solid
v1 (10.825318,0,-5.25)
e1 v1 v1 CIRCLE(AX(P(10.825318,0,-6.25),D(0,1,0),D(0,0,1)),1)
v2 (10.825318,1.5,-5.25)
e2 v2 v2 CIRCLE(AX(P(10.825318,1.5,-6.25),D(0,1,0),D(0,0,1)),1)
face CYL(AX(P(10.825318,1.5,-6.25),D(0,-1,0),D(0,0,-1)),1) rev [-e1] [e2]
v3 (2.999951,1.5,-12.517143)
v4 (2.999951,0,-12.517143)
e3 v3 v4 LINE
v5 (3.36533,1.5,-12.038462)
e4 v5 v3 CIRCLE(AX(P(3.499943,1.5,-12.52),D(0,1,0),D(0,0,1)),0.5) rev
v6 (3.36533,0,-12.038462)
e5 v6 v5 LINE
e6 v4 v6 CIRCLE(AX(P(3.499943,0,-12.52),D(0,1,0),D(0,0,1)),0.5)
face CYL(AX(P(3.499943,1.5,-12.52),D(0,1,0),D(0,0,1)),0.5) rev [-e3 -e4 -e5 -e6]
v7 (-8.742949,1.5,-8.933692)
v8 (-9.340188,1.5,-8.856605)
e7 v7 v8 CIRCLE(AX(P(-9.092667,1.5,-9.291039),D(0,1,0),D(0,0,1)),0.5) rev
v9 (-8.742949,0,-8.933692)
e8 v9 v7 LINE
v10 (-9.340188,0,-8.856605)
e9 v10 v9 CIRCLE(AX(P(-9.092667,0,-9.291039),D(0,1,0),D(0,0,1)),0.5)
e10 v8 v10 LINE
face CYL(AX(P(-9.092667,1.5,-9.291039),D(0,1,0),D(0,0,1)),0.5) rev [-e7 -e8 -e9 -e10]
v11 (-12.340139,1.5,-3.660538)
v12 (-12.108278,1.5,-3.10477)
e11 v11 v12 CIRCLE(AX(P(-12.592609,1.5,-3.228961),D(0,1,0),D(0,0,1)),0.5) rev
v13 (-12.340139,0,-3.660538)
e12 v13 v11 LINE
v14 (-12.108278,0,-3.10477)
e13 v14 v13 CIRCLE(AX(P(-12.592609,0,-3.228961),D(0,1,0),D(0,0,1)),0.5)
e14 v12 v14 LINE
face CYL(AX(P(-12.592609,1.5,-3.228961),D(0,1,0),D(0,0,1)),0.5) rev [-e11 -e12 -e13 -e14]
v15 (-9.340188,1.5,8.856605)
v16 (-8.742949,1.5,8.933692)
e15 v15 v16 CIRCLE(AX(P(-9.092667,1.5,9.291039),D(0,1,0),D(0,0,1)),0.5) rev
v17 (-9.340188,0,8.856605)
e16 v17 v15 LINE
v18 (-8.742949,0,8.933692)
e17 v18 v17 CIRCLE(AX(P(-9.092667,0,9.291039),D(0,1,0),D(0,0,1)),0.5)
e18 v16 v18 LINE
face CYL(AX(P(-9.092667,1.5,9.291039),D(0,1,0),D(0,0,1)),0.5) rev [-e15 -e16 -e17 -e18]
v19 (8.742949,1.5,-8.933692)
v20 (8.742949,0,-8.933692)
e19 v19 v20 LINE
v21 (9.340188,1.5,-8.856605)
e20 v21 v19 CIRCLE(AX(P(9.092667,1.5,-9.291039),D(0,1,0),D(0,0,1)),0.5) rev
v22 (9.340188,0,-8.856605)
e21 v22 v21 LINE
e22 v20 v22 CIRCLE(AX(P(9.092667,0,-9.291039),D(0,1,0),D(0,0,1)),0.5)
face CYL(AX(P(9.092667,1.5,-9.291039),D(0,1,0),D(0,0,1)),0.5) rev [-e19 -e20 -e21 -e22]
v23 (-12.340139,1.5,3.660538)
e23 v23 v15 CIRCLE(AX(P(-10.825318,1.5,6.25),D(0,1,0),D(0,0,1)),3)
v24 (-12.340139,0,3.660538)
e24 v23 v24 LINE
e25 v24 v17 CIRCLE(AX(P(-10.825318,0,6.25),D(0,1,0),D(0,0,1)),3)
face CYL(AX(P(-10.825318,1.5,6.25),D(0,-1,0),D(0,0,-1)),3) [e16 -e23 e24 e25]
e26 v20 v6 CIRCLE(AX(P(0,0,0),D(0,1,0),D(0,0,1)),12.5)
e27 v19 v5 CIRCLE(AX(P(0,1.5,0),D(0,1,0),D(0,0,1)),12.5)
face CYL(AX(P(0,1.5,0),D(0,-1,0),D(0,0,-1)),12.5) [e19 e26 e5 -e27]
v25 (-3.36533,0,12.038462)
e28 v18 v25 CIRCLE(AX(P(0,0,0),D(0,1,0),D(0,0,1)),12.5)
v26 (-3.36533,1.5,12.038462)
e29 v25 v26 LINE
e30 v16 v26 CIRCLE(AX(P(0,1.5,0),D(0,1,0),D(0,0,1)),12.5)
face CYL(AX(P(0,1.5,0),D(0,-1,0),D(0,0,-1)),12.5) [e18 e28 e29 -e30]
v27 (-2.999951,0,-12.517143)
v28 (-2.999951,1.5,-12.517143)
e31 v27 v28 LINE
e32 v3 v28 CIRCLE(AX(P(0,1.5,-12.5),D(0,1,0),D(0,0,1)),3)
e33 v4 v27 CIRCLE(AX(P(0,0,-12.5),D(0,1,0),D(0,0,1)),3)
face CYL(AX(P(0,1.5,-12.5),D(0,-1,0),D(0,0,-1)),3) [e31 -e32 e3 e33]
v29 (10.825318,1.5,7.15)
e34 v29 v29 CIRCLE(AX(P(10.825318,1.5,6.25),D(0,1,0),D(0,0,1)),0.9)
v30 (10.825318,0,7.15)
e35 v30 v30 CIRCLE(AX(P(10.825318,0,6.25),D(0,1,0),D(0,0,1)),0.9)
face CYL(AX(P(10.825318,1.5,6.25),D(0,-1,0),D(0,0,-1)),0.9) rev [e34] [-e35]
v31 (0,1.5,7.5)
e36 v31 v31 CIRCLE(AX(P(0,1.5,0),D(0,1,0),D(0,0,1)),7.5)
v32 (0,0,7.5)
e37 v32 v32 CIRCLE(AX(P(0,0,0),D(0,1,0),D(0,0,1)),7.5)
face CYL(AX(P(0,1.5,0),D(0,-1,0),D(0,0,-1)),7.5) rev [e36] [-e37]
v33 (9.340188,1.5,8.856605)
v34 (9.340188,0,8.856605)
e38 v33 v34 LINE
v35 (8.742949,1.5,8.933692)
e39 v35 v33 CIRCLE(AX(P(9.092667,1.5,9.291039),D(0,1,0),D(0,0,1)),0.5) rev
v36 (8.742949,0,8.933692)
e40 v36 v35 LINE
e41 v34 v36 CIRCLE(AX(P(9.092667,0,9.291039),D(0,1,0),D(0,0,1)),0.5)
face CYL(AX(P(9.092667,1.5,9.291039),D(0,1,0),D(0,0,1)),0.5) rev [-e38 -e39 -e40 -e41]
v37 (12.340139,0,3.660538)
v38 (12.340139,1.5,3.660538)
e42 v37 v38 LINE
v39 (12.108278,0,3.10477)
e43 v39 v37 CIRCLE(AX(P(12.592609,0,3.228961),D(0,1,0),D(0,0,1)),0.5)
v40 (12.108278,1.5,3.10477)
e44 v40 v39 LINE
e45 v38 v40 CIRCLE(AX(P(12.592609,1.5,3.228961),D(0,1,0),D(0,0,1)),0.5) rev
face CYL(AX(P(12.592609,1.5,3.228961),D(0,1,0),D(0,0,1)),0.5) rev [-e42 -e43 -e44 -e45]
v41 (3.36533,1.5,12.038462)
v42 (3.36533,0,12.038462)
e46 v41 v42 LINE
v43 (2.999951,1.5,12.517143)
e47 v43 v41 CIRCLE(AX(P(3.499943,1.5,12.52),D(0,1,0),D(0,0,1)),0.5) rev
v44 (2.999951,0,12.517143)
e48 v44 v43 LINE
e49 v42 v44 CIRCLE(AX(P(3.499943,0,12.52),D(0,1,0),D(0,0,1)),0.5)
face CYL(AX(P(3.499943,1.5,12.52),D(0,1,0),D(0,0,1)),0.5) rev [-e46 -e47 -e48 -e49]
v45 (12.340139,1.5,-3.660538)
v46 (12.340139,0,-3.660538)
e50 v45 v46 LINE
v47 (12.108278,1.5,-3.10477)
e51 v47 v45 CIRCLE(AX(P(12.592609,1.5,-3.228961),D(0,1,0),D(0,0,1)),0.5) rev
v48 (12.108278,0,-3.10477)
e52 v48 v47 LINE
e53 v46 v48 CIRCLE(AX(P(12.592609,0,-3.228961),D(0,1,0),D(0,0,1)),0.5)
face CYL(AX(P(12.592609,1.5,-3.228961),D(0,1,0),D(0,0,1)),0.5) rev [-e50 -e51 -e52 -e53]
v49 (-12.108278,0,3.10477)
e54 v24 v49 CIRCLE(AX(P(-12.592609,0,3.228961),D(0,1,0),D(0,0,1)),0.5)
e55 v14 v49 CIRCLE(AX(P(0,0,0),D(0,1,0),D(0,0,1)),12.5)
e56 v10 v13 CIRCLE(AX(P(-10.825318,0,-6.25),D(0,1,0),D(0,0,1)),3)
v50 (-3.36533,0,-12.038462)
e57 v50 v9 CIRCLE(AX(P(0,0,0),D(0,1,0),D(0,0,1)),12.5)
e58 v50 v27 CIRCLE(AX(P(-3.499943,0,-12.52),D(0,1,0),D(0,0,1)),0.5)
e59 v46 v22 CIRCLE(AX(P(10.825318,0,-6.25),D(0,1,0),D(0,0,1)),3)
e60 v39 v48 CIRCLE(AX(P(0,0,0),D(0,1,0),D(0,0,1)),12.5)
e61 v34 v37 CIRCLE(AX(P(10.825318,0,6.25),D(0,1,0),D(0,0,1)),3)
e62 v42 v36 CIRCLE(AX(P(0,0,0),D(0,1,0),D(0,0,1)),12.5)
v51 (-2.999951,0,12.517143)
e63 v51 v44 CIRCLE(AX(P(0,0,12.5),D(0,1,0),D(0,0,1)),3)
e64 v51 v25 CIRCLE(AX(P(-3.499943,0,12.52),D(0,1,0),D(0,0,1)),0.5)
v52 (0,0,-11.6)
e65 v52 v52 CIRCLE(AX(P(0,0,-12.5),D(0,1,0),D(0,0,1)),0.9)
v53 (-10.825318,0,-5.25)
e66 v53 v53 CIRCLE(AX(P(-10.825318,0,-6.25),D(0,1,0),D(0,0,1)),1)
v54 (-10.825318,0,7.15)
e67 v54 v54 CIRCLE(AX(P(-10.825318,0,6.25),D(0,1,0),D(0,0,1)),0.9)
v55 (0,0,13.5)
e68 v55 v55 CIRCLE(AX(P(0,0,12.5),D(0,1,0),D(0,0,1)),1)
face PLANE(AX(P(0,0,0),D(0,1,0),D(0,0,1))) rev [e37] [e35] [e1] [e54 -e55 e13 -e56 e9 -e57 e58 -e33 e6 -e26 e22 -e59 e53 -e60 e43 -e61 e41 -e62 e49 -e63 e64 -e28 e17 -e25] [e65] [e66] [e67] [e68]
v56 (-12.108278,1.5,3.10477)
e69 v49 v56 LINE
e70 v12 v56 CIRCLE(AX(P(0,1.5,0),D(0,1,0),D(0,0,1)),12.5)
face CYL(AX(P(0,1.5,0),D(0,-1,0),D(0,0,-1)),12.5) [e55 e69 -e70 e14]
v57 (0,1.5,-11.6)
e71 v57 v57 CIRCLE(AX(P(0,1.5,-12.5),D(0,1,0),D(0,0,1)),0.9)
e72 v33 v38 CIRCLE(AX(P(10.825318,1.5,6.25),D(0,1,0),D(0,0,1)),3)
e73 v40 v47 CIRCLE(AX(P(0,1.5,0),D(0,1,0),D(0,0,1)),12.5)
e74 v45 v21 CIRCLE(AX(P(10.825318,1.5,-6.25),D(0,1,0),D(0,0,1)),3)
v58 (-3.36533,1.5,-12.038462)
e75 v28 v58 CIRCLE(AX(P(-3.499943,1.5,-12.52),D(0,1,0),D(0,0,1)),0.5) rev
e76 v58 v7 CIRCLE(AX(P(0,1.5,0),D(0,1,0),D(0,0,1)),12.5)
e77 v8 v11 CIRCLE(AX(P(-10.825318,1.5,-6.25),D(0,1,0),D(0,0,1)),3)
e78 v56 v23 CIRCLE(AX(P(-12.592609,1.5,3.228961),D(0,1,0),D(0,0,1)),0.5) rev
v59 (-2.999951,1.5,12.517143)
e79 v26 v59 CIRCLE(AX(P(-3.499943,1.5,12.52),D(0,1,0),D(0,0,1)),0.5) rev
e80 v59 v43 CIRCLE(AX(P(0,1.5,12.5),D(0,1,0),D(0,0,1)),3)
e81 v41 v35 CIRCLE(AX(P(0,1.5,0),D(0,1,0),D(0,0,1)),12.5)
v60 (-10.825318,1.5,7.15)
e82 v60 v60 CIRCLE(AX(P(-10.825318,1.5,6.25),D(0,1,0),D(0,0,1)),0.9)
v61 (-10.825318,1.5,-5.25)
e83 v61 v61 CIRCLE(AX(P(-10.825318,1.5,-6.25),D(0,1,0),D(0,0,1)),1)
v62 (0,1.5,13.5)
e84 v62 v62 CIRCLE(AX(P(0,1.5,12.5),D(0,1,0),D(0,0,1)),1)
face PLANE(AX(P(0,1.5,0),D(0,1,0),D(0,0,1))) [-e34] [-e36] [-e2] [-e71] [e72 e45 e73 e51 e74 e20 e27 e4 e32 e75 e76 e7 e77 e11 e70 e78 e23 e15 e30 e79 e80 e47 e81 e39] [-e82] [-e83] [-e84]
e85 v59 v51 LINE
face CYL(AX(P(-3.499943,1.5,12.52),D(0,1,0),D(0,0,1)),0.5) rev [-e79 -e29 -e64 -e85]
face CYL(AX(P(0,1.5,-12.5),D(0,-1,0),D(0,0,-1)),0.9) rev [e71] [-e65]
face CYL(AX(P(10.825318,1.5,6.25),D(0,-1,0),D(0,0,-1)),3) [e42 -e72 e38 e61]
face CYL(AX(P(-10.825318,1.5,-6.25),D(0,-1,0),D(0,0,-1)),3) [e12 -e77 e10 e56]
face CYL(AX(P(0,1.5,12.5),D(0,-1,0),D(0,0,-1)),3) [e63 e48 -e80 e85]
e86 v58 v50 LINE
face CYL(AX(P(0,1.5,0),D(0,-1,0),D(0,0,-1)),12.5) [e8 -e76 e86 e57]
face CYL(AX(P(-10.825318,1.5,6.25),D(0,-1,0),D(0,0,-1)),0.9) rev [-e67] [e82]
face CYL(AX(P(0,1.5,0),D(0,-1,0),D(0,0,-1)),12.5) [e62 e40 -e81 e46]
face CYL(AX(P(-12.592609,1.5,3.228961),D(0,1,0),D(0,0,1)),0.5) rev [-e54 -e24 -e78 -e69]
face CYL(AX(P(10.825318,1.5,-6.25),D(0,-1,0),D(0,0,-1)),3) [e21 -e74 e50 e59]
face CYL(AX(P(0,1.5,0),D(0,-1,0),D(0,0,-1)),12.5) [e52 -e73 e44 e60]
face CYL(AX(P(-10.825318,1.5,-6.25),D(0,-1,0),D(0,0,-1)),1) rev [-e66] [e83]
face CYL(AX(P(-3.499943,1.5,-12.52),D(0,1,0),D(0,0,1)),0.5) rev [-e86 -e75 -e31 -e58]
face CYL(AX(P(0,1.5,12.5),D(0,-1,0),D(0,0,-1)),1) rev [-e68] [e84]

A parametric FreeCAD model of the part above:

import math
import FreeCAD as App
import Part
import Sketcher
from FreeCAD import Vector
Q = App.Units.Quantity


def edges_at(feature, points):
    """Names of the edges that pass closest to the given points."""
    edges = feature.Shape.Edges
    near = lambda p: min(range(len(edges)), key=lambda i: edges[i].distToShape(Part.Vertex(*p))[0])
    return sorted({f"Edge{near(p) + 1}" for p in points})

doc = App.newDocument("Part")
body = doc.addObject("PartDesign::Body", "Body")

# Sketch on XZ plane
sketch1 = doc.addObject("Sketcher::SketchObject", "Sketch")
body.addObject(sketch1)
sketch1.AttachmentSupport = (doc.XZ_Plane, [""])
sketch1.MapMode = "FlatFace"
sketch1.addGeometry(Part.LineSegment(Vector(-3, 12.13, 0), Vector(-3, 12.5, 0)), False)
sketch1.addGeometry(Part.ArcOfCircle(Part.Circle(Vector(0, 12.5, 0), Vector(0, 0, 1), 3), math.radians(0), math.radians(180)), False)
sketch1.addGeometry(Part.LineSegment(Vector(3, 12.5, 0), Vector(3, 12.13, 0)), False)
sketch1.addGeometry(Part.ArcOfCircle(Part.Circle(Vector(0, 0, 0), Vector(0, 0, 1), 12.5), math.radians(44), math.radians(76)), False)
sketch1.addGeometry(Part.LineSegment(Vector(9.01, 8.67, 0), Vector(9.33, 8.85, 0)), False)
sketch1.addGeometry(Part.ArcOfCircle(Part.Circle(Vector(10.83, 6.25, 0), Vector(0, 0, 1), 3), math.radians(-60), math.radians(120)), False)
sketch1.addGeometry(Part.LineSegment(Vector(12.33, 3.65, 0), Vector(12.01, 3.47, 0)), False)
sketch1.addGeometry(Part.ArcOfCircle(Part.Circle(Vector(0, 0, 0), Vector(0, 0, 1), 12.5), math.radians(-16), math.radians(16)), False)
sketch1.addGeometry(Part.LineSegment(Vector(12.01, -3.47, 0), Vector(12.33, -3.65, 0)), False)
sketch1.addGeometry(Part.ArcOfCircle(Part.Circle(Vector(10.83, -6.25, 0), Vector(0, 0, 1), 3), math.radians(-120), math.radians(60)), False)
sketch1.addGeometry(Part.LineSegment(Vector(9.33, -8.85, 0), Vector(9.01, -8.67, 0)), False)
sketch1.addGeometry(Part.ArcOfCircle(Part.Circle(Vector(0, 0, 0), Vector(0, 0, 1), 12.5), math.radians(-76), math.radians(-44)), False)
sketch1.addGeometry(Part.LineSegment(Vector(3, -12.13, 0), Vector(3, -12.5, 0)), False)
sketch1.addGeometry(Part.ArcOfCircle(Part.Circle(Vector(0, -12.5, 0), Vector(0, 0, 1), 3), math.radians(180), math.radians(360)), False)
sketch1.addGeometry(Part.LineSegment(Vector(-3, -12.5, 0), Vector(-3, -12.13, 0)), False)
sketch1.addGeometry(Part.ArcOfCircle(Part.Circle(Vector(0, 0, 0), Vector(0, 0, 1), 12.5), math.radians(-136), math.radians(-104)), False)
sketch1.addGeometry(Part.LineSegment(Vector(-9.01, -8.67, 0), Vector(-9.33, -8.85, 0)), False)
sketch1.addGeometry(Part.ArcOfCircle(Part.Circle(Vector(-10.83, -6.25, 0), Vector(0, 0, 1), 3), math.radians(120), math.radians(300)), False)
sketch1.addGeometry(Part.LineSegment(Vector(-12.33, -3.65, 0), Vector(-12.01, -3.47, 0)), False)
sketch1.addGeometry(Part.ArcOfCircle(Part.Circle(Vector(0, 0, 0), Vector(0, 0, 1), 12.5), math.radians(164), math.radians(196)), False)
sketch1.addGeometry(Part.LineSegment(Vector(-12.01, 3.47, 0), Vector(-12.33, 3.65, 0)), False)
sketch1.addGeometry(Part.ArcOfCircle(Part.Circle(Vector(-10.83, 6.25, 0), Vector(0, 0, 1), 3), math.radians(60), math.radians(240)), False)
sketch1.addGeometry(Part.LineSegment(Vector(-9.33, 8.85, 0), Vector(-9.01, 8.67, 0)), False)
sketch1.addGeometry(Part.ArcOfCircle(Part.Circle(Vector(0, 0, 0), Vector(0, 0, 1), 12.5), math.radians(104), math.radians(136)), False)
sketch1.addGeometry(Part.Circle(Vector(0, 12.5, 0), Vector(0, 0, 1), 1), False)
sketch1.addGeometry(Part.Circle(Vector(-10.83, 6.25, 0), Vector(0, 0, 1), 0.9), False)
sketch1.addGeometry(Part.Circle(Vector(10.83, 6.25, 0), Vector(0, 0, 1), 0.9), False)
sketch1.addGeometry(Part.Circle(Vector(-10.83, -6.25, 0), Vector(0, 0, 1), 1), False)
sketch1.addGeometry(Part.Circle(Vector(0, 0, 0), Vector(0, 0, 1), 7.5), False)
sketch1.addGeometry(Part.Circle(Vector(0, -12.5, 0), Vector(0, 0, 1), 0.9), False)
sketch1.addGeometry(Part.Circle(Vector(10.83, -6.25, 0), Vector(0, 0, 1), 1), False)
sketch1.addConstraint(Sketcher.Constraint("Tangent", 0, 2, 1, 2))
sketch1.addConstraint(Sketcher.Constraint("Tangent", 1, 1, 2, 1))
sketch1.addConstraint(Sketcher.Constraint("Coincident", 2, 2, 3, 2))
sketch1.addConstraint(Sketcher.Constraint("Coincident", 3, 1, 4, 1))
sketch1.addConstraint(Sketcher.Constraint("Tangent", 4, 2, 5, 2))
sketch1.addConstraint(Sketcher.Constraint("Tangent", 5, 1, 6, 1))
sketch1.addConstraint(Sketcher.Constraint("Coincident", 6, 2, 7, 2))
sketch1.addConstraint(Sketcher.Constraint("Coincident", 7, 1, 8, 1))
sketch1.addConstraint(Sketcher.Constraint("Tangent", 8, 2, 9, 2))
sketch1.addConstraint(Sketcher.Constraint("Tangent", 9, 1, 10, 1))
sketch1.addConstraint(Sketcher.Constraint("Coincident", 10, 2, 11, 2))
sketch1.addConstraint(Sketcher.Constraint("Coincident", 11, 1, 12, 1))
sketch1.addConstraint(Sketcher.Constraint("Tangent", 12, 2, 13, 2))
sketch1.addConstraint(Sketcher.Constraint("Tangent", 13, 1, 14, 1))
sketch1.addConstraint(Sketcher.Constraint("Coincident", 14, 2, 15, 2))
sketch1.addConstraint(Sketcher.Constraint("Coincident", 15, 1, 16, 1))
sketch1.addConstraint(Sketcher.Constraint("Tangent", 16, 2, 17, 2))
sketch1.addConstraint(Sketcher.Constraint("Tangent", 17, 1, 18, 1))
sketch1.addConstraint(Sketcher.Constraint("Coincident", 18, 2, 19, 2))
sketch1.addConstraint(Sketcher.Constraint("Coincident", 19, 1, 20, 1))
sketch1.addConstraint(Sketcher.Constraint("Tangent", 20, 2, 21, 2))
sketch1.addConstraint(Sketcher.Constraint("Tangent", 21, 1, 22, 1))
sketch1.addConstraint(Sketcher.Constraint("Coincident", 22, 2, 23, 2))
sketch1.addConstraint(Sketcher.Constraint("Coincident", 23, 1, 0, 1))
sketch1.addConstraint(Sketcher.Constraint("Vertical", 0))
sketch1.addConstraint(Sketcher.Constraint("Vertical", 2))
sketch1.addConstraint(Sketcher.Constraint("Vertical", 12))
sketch1.addConstraint(Sketcher.Constraint("Vertical", 14))
sketch1.addConstraint(Sketcher.Constraint("Coincident", 3, 3, -1, 1))
sketch1.addConstraint(Sketcher.Constraint("Coincident", 7, 3, -1, 1))
sketch1.addConstraint(Sketcher.Constraint("Coincident", 11, 3, -1, 1))
sketch1.addConstraint(Sketcher.Constraint("Coincident", 15, 3, -1, 1))
sketch1.addConstraint(Sketcher.Constraint("Coincident", 19, 3, -1, 1))
sketch1.addConstraint(Sketcher.Constraint("Coincident", 23, 3, -1, 1))
sketch1.addConstraint(Sketcher.Constraint("Coincident", 28, 3, -1, 1))
sketch1.addConstraint(Sketcher.Constraint("Coincident", 24, 3, 1, 3))
sketch1.addConstraint(Sketcher.Constraint("Coincident", 25, 3, 21, 3))
sketch1.addConstraint(Sketcher.Constraint("Coincident", 26, 3, 5, 3))
sketch1.addConstraint(Sketcher.Constraint("Coincident", 27, 3, 17, 3))
sketch1.addConstraint(Sketcher.Constraint("Coincident", 29, 3, 13, 3))
sketch1.addConstraint(Sketcher.Constraint("Coincident", 30, 3, 9, 3))
sketch1.addConstraint(Sketcher.Constraint("Equal", 1, 5))
sketch1.addConstraint(Sketcher.Constraint("Equal", 3, 7))
sketch1.addConstraint(Sketcher.Constraint("Equal", 5, 9))
sketch1.addConstraint(Sketcher.Constraint("Equal", 7, 11))
sketch1.addConstraint(Sketcher.Constraint("Equal", 9, 13))
sketch1.addConstraint(Sketcher.Constraint("Equal", 11, 15))
sketch1.addConstraint(Sketcher.Constraint("Equal", 13, 17))
sketch1.addConstraint(Sketcher.Constraint("Equal", 15, 19))
sketch1.addConstraint(Sketcher.Constraint("Equal", 17, 21))
sketch1.addConstraint(Sketcher.Constraint("Equal", 19, 23))
sketch1.addConstraint(Sketcher.Constraint("Equal", 25, 26))
sketch1.addConstraint(Sketcher.Constraint("Equal", 24, 27))
sketch1.addConstraint(Sketcher.Constraint("Equal", 26, 29))
sketch1.addConstraint(Sketcher.Constraint("Equal", 27, 30))
sketch1.addConstraint(Sketcher.Constraint("Symmetric", 1, 3, 13, 3, -1, 1))
sketch1.addConstraint(Sketcher.Constraint("Symmetric", 5, 3, 17, 3, -1, 1))
sketch1.addConstraint(Sketcher.Constraint("Symmetric", 9, 3, 21, 3, -1, 1))
sketch1.addConstraint(Sketcher.Constraint("Symmetric", 9, 3, 17, 3, -2))
sketch1.addConstraint(Sketcher.Constraint("PointOnObject", 1, 3, -2))
sketch1.addConstraint(Sketcher.Constraint("Parallel", 4, 6))
sketch1.addConstraint(Sketcher.Constraint("Parallel", 8, 10))
sketch1.addConstraint(Sketcher.Constraint("Parallel", 6, 16))
sketch1.addConstraint(Sketcher.Constraint("Parallel", 16, 18))
sketch1.addConstraint(Sketcher.Constraint("Parallel", 10, 20))
sketch1.addConstraint(Sketcher.Constraint("Parallel", 20, 22))
sketch1.addConstraint(Sketcher.Constraint("Horizontal", 10, 2, 15, 1))
sketch1.addConstraint(Sketcher.Constraint("Equal", 4, 6))
sketch1.addConstraint(Sketcher.Constraint("Diameter", 24, Q("2 mm")))
sketch1.addConstraint(Sketcher.Constraint("Diameter", 28, Q("15 mm")))
sketch1.addConstraint(Sketcher.Constraint("Radius", 1, Q("3 mm")))
sketch1.addConstraint(Sketcher.Constraint("Diameter", 25, Q("1.8 mm")))
sketch1.addConstraint(Sketcher.Constraint("Radius", 3, Q("12.5 mm")))
sketch1.addConstraint(Sketcher.Constraint("Angle", 4, Q("30 deg")))
sketch1.addConstraint(Sketcher.Constraint("DistanceY", -1, 1, 1, 3, Q("12.5 mm")))
sketch1.addConstraint(Sketcher.Constraint("DistanceY", 9, 3, 5, 3, Q("12.5 mm")))
pad1 = doc.addObject("PartDesign::Pad", "Pad")
body.addObject(pad1)
pad1.Profile = sketch1
pad1.Length = 1.5
pad1.Reversed = True
doc.recompute()

fillet = doc.addObject("PartDesign::Fillet", "Fillet")
body.addObject(fillet)
fillet.Base = (pad1, edges_at(pad1, [
    (-3, 0.75, 12.135),
    (3, 0.75, 12.135),
    (9.009, 0.75, 8.665),
    (12.009, 0.75, 3.469),
    (12.009, 0.75, -3.469),
    (9.009, 0.75, -8.665),
    (3, 0.75, -12.135),
    (-3, 0.75, -12.135),
    (-9.009, 0.75, -8.665),
    (-12.009, 0.75, -3.469),
    (-12.009, 0.75, 3.469),
    (-9.009, 0.75, 8.665),
]))
fillet.Radius = 0.5

doc.recompute()
